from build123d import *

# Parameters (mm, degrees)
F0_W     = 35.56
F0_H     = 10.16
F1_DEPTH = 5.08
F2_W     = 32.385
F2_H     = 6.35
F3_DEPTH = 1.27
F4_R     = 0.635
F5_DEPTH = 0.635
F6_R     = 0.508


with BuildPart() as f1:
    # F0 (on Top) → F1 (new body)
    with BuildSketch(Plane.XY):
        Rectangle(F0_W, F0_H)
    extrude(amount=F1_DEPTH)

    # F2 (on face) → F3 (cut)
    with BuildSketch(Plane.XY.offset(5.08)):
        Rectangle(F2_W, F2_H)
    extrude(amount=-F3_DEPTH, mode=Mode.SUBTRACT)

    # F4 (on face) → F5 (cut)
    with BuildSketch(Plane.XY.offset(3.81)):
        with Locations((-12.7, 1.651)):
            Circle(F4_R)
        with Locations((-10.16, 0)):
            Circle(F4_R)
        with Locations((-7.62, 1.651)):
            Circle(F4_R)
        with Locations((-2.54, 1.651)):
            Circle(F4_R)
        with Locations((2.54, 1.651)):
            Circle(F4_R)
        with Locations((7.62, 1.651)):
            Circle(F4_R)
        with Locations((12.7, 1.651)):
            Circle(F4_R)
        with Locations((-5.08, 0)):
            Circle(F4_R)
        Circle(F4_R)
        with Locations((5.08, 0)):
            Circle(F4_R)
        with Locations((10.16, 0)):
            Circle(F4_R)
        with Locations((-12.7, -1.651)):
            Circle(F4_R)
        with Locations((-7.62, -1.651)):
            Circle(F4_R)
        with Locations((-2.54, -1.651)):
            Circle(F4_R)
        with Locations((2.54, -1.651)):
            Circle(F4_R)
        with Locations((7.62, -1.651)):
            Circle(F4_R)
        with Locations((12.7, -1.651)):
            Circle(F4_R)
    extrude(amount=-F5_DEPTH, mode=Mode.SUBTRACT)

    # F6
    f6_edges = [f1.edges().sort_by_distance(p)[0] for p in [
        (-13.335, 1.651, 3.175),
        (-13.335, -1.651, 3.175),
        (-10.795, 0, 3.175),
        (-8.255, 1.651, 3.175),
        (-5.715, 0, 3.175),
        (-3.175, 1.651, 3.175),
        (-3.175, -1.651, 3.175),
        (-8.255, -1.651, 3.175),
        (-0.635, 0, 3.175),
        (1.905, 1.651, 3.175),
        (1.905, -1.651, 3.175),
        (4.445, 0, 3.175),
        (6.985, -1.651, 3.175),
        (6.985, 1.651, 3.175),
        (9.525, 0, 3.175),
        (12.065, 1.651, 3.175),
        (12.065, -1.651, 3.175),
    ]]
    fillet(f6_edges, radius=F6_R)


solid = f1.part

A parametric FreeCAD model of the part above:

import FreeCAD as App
import Part
import Sketcher
Q = App.Units.Quantity


def edges_at(feature, points):
    """Names of the edges that pass closest to the given points."""
    edges = feature.Shape.Edges
    near = lambda p: min(range(len(edges)), key=lambda i: edges[i].distToShape(Part.Vertex(*p))[0])
    return sorted({f"Edge{near(p) + 1}" for p in points})

doc = App.newDocument("Part")
params = doc.addObject("Spreadsheet::Sheet", "Params")
for row, (alias, value) in enumerate([
    ("sketch1_width", "1.4 in"),
    ("sketch1_height", "0.4 in"),
    ("pad1_length", "0.2 in"),
    ("sketch2_height", "0.25 in"),
    ("sketch2_width", "1.275 in"),
    ("pocket1_length", "0.05 in"),
    ("sketch3_diameter", "0.05 in"),
    ("pocket2_length", "0.025 in"),
    ("fillet_radius", "0.02 in"),
], start=1):
    params.set(f"A{row}", alias)
    params.set(f"B{row}", "=" + value)
    params.setAlias(f"B{row}", alias)

body = doc.addObject("PartDesign::Body", "Body")

# Sketch on XY plane
sketch1 = doc.addObject("Sketcher::SketchObject", "Sketch")
body.addObject(sketch1)
sketch1.AttachmentSupport = (doc.XY_Plane, [""])
sketch1.MapMode = "FlatFace"
sketch1.addGeometry(Part.LineSegment(App.Vector(-18, 5, 0), App.Vector(-18, -5, 0)), False)
sketch1.addGeometry(Part.LineSegment(App.Vector(-18, -5, 0), App.Vector(18, -5, 0)), False)
sketch1.addGeometry(Part.LineSegment(App.Vector(18, -5, 0), App.Vector(18, 5, 0)), False)
sketch1.addGeometry(Part.LineSegment(App.Vector(18, 5, 0), App.Vector(-18, 5, 0)), False)
sketch1.addConstraint(Sketcher.Constraint("Coincident", 0, 2, 1, 1))
sketch1.addConstraint(Sketcher.Constraint("Coincident", 1, 2, 2, 1))
sketch1.addConstraint(Sketcher.Constraint("Coincident", 2, 2, 3, 1))
sketch1.addConstraint(Sketcher.Constraint("Coincident", 3, 2, 0, 1))
sketch1.addConstraint(Sketcher.Constraint("Vertical", 0))
sketch1.addConstraint(Sketcher.Constraint("Horizontal", 1))
sketch1.addConstraint(Sketcher.Constraint("Vertical", 2))
sketch1.addConstraint(Sketcher.Constraint("Horizontal", 3))
sketch1.addConstraint(Sketcher.Constraint("Symmetric", 0, 2, 2, 2, -1, 1))
sketch1.addConstraint(Sketcher.Constraint("DistanceX", 1, 1, 1, 2, Q("1.4 in")))
sketch1.addConstraint(Sketcher.Constraint("DistanceY", 0, 2, 0, 1, Q("0.4 in")))
sketch1.setExpression("Constraints[9]", "Params.sketch1_width")
sketch1.setExpression("Constraints[10]", "Params.sketch1_height")
pad1 = doc.addObject("PartDesign::Pad", "Pad")
body.addObject(pad1)
pad1.Profile = sketch1
pad1.setExpression("Length", "Params.pad1_length")

# Sketch on XY plane
sketch2 = doc.addObject("Sketcher::SketchObject", "Sketch001")
body.addObject(sketch2)
sketch2.AttachmentSupport = (doc.XY_Plane, [""])
sketch2.MapMode = "FlatFace"
sketch2.AttachmentOffset = App.Placement(App.Vector(0, 0, 0.2 * 25.4), App.Rotation())
sketch2.addGeometry(Part.LineSegment(App.Vector(-16, 3, 0), App.Vector(-16, -3, 0)), False)
sketch2.addGeometry(Part.LineSegment(App.Vector(-16, -3, 0), App.Vector(16, -3, 0)), False)
sketch2.addGeometry(Part.LineSegment(App.Vector(16, -3, 0), App.Vector(16, 3, 0)), False)
sketch2.addGeometry(Part.LineSegment(App.Vector(16, 3, 0), App.Vector(-16, 3, 0)), False)
sketch2.addConstraint(Sketcher.Constraint("Coincident", 0, 2, 1, 1))
sketch2.addConstraint(Sketcher.Constraint("Coincident", 1, 2, 2, 1))
sketch2.addConstraint(Sketcher.Constraint("Coincident", 2, 2, 3, 1))
sketch2.addConstraint(Sketcher.Constraint("Coincident", 3, 2, 0, 1))
sketch2.addConstraint(Sketcher.Constraint("Vertical", 0))
sketch2.addConstraint(Sketcher.Constraint("Horizontal", 1))
sketch2.addConstraint(Sketcher.Constraint("Vertical", 2))
sketch2.addConstraint(Sketcher.Constraint("Horizontal", 3))
sketch2.addConstraint(Sketcher.Constraint("Symmetric", 0, 2, 2, 2, -1, 1))
sketch2.addConstraint(Sketcher.Constraint("DistanceY", 0, 2, 0, 1, Q("0.25 in")))
sketch2.addConstraint(Sketcher.Constraint("DistanceX", 1, 1, 1, 2, Q("1.275 in")))
sketch2.setExpression("Constraints[9]", "Params.sketch2_height")
sketch2.setExpression("Constraints[10]", "Params.sketch2_width")
pocket1 = doc.addObject("PartDesign::Pocket", "Pocket")
body.addObject(pocket1)
pocket1.Profile = sketch2
pocket1.setExpression("Length", "Params.pocket1_length")

# Sketch on XY plane
sketch3 = doc.addObject("Sketcher::SketchObject", "Sketch002")
body.addObject(sketch3)
sketch3.AttachmentSupport = (doc.XY_Plane, [""])
sketch3.MapMode = "FlatFace"
sketch3.AttachmentOffset = App.Placement(App.Vector(0, 0, 0.15 * 25.4), App.Rotation())
sketch3.addGeometry(Part.Circle(App.Vector(-12.7, 1.7, 0), App.Vector(0, 0, 1), 0.6), False)
sketch3.addGeometry(Part.Circle(App.Vector(-10.2, 0, 0), App.Vector(0, 0, 1), 0.6), False)
sketch3.addGeometry(Part.Circle(App.Vector(-7.6, 1.7, 0), App.Vector(0, 0, 1), 0.6), False)
sketch3.addGeometry(Part.Circle(App.Vector(-2.5, 1.7, 0), App.Vector(0, 0, 1), 0.6), False)
sketch3.addGeometry(Part.Circle(App.Vector(2.5, 1.7, 0), App.Vector(0, 0, 1), 0.6), False)
sketch3.addGeometry(Part.Circle(App.Vector(7.6, 1.7, 0), App.Vector(0, 0, 1), 0.6), False)
sketch3.addGeometry(Part.Circle(App.Vector(12.7, 1.7, 0), App.Vector(0, 0, 1), 0.6), False)
sketch3.addGeometry(Part.Circle(App.Vector(-5.1, 0, 0), App.Vector(0, 0, 1), 0.6), False)
sketch3.addGeometry(Part.Circle(App.Vector(0, 0, 0), App.Vector(0, 0, 1), 0.6), False)
sketch3.addGeometry(Part.Circle(App.Vector(5.1, 0, 0), App.Vector(0, 0, 1), 0.6), False)
sketch3.addGeometry(Part.Circle(App.Vector(10.2, 0, 0), App.Vector(0, 0, 1), 0.6), False)
sketch3.addGeometry(Part.Circle(App.Vector(-12.7, -1.7, 0), App.Vector(0, 0, 1), 0.6), False)
sketch3.addGeometry(Part.Circle(App.Vector(-7.6, -1.7, 0), App.Vector(0, 0, 1), 0.6), False)
sketch3.addGeometry(Part.Circle(App.Vector(-2.5, -1.7, 0), App.Vector(0, 0, 1), 0.6), False)
sketch3.addGeometry(Part.Circle(App.Vector(2.5, -1.7, 0), App.Vector(0, 0, 1), 0.6), False)
sketch3.addGeometry(Part.Circle(App.Vector(7.6, -1.7, 0), App.Vector(0, 0, 1), 0.6), False)
sketch3.addGeometry(Part.Circle(App.Vector(12.7, -1.7, 0), App.Vector(0, 0, 1), 0.6), False)
sketch3.addConstraint(Sketcher.Constraint("Coincident", 8, 3, -1, 1))
sketch3.addConstraint(Sketcher.Constraint("Equal", 0, 1))
sketch3.addConstraint(Sketcher.Constraint("Equal", 1, 2))
sketch3.addConstraint(Sketcher.Constraint("Equal", 2, 3))
sketch3.addConstraint(Sketcher.Constraint("Equal", 3, 4))
sketch3.addConstraint(Sketcher.Constraint("Equal", 4, 5))
sketch3.addConstraint(Sketcher.Constraint("Equal", 5, 6))
sketch3.addConstraint(Sketcher.Constraint("Equal", 6, 7))
sketch3.addConstraint(Sketcher.Constraint("Equal", 7, 8))
sketch3.addConstraint(Sketcher.Constraint("Equal", 8, 9))
sketch3.addConstraint(Sketcher.Constraint("Equal", 9, 10))
sketch3.addConstraint(Sketcher.Constraint("Equal", 10, 11))
sketch3.addConstraint(Sketcher.Constraint("Equal", 11, 12))
sketch3.addConstraint(Sketcher.Constraint("Equal", 12, 13))
sketch3.addConstraint(Sketcher.Constraint("Equal", 13, 14))
sketch3.addConstraint(Sketcher.Constraint("Equal", 14, 15))
sketch3.addConstraint(Sketcher.Constraint("Equal", 15, 16))
sketch3.addConstraint(Sketcher.Constraint("Symmetric", 7, 3, 9, 3, -1, 1))
sketch3.addConstraint(Sketcher.Constraint("Symmetric", 1, 3, 10, 3, -1, 1))
sketch3.addConstraint(Sketcher.Constraint("Symmetric", 6, 3, 11, 3, -1, 1))
sketch3.addConstraint(Sketcher.Constraint("Symmetric", 5, 3, 12, 3, -1, 1))
sketch3.addConstraint(Sketcher.Constraint("Symmetric", 4, 3, 13, 3, -1, 1))
sketch3.addConstraint(Sketcher.Constraint("Symmetric", 3, 3, 14, 3, -1, 1))
sketch3.addConstraint(Sketcher.Constraint("Symmetric", 2, 3, 15, 3, -1, 1))
sketch3.addConstraint(Sketcher.Constraint("Symmetric", 0, 3, 16, 3, -1, 1))
sketch3.addConstraint(Sketcher.Constraint("Symmetric", 3, 3, 4, 3, -2))
sketch3.addConstraint(Sketcher.Constraint("Symmetric", 2, 3, 5, 3, -2))
sketch3.addConstraint(Sketcher.Constraint("Symmetric", 0, 3, 6, 3, -2))
sketch3.addConstraint(Sketcher.Constraint("PointOnObject", 1, 3, -1))
sketch3.addConstraint(Sketcher.Constraint("PointOnObject", 7, 3, -1))
sketch3.addConstraint(Sketcher.Constraint("Horizontal", 0, 3, 2, 3))
sketch3.addConstraint(Sketcher.Constraint("Horizontal", 2, 3, 3, 3))
sketch3.addConstraint(Sketcher.Constraint("Diameter", 0, Q("0.05 in")))
sketch3.addConstraint(Sketcher.Constraint("DistanceX", 0, 3, -1, 1, Q("0.5 in")))
sketch3.addConstraint(Sketcher.Constraint("DistanceX", 1, 3, -1, 1, Q("0.4 in")))
sketch3.addConstraint(Sketcher.Constraint("DistanceX", 2, 3, -1, 1, Q("0.3 in")))
sketch3.addConstraint(Sketcher.Constraint("DistanceX", 3, 3, -1, 1, Q("0.1 in")))
sketch3.addConstraint(Sketcher.Constraint("DistanceX", 7, 3, -1, 1, Q("0.2 in")))
sketch3.addConstraint(Sketcher.Constraint("DistanceY", 11, 3, 0, 3, Q("0.13 in")))
sketch3.setExpression("Constraints[32]", "Params.sketch3_diameter")
pocket2 = doc.addObject("PartDesign::Pocket", "Pocket001")
body.addObject(pocket2)
pocket2.Profile = sketch3
pocket2.setExpression("Length", "Params.pocket2_length")
doc.recompute()

fillet = doc.addObject("PartDesign::Fillet", "Fillet")
body.addObject(fillet)
fillet.Base = (pocket2, edges_at(pocket2, [
    (-13.335, 1.651, 3.175),
    (-13.335, -1.651, 3.175),
    (-10.795, 0, 3.175),
    (-8.255, 1.651, 3.175),
    (-5.715, 0, 3.175),
    (-3.175, 1.651, 3.175),
    (-3.175, -1.651, 3.175),
    (-8.255, -1.651, 3.175),
    (-0.635, 0, 3.175),
    (1.905, 1.651, 3.175),
    (1.905, -1.651, 3.175),
    (4.445, 0, 3.175),
    (6.985, -1.651, 3.175),
    (6.985, 1.651, 3.175),
    (9.525, 0, 3.175),
    (12.065, 1.651, 3.175),
    (12.065, -1.651, 3.175),
]))
fillet.setExpression("Radius", "Params.fillet_radius")

doc.recompute()
